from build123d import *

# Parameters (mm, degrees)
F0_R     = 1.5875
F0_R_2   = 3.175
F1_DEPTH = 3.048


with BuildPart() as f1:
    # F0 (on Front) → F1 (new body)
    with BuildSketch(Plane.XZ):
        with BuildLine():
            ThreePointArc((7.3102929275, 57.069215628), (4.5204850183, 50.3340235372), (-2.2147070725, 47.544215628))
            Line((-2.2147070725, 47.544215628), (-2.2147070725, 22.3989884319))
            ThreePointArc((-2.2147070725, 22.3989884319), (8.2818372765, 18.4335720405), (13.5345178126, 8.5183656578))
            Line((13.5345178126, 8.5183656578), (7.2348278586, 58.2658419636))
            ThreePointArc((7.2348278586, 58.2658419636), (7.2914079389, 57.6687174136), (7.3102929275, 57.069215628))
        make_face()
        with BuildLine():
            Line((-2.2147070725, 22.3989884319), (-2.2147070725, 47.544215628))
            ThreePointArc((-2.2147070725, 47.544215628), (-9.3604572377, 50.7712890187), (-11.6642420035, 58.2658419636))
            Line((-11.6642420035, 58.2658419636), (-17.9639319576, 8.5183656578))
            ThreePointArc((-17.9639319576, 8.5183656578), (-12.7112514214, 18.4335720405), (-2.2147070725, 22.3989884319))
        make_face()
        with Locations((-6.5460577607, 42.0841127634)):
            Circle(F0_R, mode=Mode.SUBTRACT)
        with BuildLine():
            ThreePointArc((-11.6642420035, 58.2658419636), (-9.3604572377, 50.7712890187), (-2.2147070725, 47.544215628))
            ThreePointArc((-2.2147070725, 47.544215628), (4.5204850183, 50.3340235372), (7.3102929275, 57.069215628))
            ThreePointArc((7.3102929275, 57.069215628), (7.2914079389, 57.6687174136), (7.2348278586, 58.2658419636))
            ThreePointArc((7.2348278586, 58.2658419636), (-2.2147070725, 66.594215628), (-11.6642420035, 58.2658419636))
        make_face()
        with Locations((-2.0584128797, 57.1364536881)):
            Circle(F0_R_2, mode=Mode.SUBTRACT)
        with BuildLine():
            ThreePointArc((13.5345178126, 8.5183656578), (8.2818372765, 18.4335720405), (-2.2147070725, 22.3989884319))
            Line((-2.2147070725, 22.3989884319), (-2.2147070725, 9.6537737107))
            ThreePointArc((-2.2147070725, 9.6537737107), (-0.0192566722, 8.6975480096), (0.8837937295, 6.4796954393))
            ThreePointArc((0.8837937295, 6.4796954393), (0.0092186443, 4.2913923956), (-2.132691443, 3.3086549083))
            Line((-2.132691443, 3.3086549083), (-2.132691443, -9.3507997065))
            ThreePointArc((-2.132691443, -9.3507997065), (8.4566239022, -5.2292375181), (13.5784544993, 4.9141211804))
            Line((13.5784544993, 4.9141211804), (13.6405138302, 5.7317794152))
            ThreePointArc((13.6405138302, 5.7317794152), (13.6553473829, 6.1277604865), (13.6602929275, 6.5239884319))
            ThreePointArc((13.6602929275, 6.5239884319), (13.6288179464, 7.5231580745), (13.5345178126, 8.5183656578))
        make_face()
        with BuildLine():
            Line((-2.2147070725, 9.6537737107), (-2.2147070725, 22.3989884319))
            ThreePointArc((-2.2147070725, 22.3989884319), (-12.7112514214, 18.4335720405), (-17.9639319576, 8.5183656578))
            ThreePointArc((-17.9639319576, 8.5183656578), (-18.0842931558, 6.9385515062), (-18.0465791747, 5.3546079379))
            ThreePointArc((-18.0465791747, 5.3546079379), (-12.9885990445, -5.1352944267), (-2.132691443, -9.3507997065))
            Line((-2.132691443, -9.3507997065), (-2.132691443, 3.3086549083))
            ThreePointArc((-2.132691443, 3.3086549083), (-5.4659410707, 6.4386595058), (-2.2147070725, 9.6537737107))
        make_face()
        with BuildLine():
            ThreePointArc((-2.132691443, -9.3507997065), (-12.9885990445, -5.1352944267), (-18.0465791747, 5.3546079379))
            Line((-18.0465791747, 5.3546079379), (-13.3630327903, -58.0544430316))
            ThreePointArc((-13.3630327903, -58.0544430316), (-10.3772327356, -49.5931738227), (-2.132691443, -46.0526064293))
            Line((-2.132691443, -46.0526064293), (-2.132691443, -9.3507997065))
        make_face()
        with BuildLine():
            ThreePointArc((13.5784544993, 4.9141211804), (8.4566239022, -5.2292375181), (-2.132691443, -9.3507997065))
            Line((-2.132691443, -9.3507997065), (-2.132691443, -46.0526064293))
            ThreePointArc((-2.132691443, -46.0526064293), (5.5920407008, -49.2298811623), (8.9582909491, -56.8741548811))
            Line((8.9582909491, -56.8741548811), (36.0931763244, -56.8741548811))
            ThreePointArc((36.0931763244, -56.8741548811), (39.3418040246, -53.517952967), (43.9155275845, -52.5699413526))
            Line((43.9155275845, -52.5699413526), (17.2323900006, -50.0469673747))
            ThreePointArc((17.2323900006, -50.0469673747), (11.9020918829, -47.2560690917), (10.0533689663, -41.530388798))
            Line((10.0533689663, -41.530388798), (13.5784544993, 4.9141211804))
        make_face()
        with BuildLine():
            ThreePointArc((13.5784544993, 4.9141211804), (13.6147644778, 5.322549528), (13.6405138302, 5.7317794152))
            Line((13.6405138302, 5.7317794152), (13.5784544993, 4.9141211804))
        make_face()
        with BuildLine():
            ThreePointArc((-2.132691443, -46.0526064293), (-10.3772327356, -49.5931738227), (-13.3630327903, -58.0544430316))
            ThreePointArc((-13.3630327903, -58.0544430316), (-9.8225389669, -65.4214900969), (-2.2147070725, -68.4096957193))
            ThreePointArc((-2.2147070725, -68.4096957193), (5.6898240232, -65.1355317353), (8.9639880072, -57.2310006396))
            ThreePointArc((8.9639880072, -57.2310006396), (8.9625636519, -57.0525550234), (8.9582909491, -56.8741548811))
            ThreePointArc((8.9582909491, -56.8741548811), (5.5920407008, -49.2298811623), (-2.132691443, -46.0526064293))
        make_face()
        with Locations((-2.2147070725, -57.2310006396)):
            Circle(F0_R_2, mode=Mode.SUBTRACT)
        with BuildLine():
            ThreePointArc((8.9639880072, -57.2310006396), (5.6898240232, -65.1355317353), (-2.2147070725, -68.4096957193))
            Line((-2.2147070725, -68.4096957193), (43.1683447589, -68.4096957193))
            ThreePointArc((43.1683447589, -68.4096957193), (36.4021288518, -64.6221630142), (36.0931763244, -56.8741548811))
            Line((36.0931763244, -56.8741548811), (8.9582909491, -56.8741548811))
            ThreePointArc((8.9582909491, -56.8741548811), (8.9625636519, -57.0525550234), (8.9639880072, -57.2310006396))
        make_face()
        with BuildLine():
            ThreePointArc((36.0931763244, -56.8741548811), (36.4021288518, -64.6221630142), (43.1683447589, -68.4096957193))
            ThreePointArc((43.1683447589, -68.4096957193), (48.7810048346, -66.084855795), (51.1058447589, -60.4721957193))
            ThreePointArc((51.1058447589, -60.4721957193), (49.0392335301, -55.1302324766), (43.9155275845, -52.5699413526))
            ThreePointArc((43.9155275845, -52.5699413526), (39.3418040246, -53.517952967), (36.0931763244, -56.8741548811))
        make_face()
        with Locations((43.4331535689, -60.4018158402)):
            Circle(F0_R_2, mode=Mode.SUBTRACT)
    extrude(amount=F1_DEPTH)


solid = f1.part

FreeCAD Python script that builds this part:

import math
import FreeCAD as App
import Part
import Sketcher

V = App.Vector
Q = App.Units.Quantity

doc = App.newDocument("Part")
params = doc.addObject("Spreadsheet::Sheet", "Params")
for row, (alias, value) in enumerate([
    ("sketch1_diameter", "0.25 in"),
    ("sketch1_diameter2", "0.125 in"),
    ("sketch1_radius", "0.375 in"),
    ("sketch1_radius2", "0.625 in"),
    ("sketch1_radius3", "0.3125 in"),
    ("pad1_length", "0.12 in"),
], start=1):
    params.set(f"A{row}", alias)
    params.set(f"B{row}", "=" + value)
    params.setAlias(f"B{row}", alias)

body = doc.addObject("PartDesign::Body", "Body")

sketch1 = body.newObject("Sketcher::SketchObject", "Sketch")
sketch1.AttachmentSupport = (doc.getObject("XZ_Plane"), [""])
sketch1.MapMode = "FlatFace"
sketch1.addGeometry([
    Part.LineSegment(V(13.534518, 8.518366, 0), V(7.234828, 58.265842, 0)),
    Part.ArcOfCircle(Part.Circle(V(-2.214707, 57.069216, 0), V(0, 0, 1), 9.525), math.radians(7.217142), math.radians(172.782858)),
    Part.LineSegment(V(-11.664242, 58.265842, 0), V(-17.963932, 8.518366, 0)),
    Part.ArcOfCircle(Part.Circle(V(-2.214707, 6.523988, 0), V(0, 0, 1), 15.875), math.radians(172.782858), math.radians(184.224334)),
    Part.LineSegment(V(-18.046579, 5.354608, 0), V(-13.363033, -58.054443, 0)),
    Part.ArcOfCircle(Part.Circle(V(-2.214707, -57.231001, 0), V(0, 0, 1), 11.178695), math.radians(-175.775666), math.radians(-90)),
    Part.LineSegment(V(-2.214707, -68.409696, 0), V(43.168345, -68.409696, 0)),
    Part.ArcOfCircle(Part.Circle(V(43.168345, -60.472196, 0), V(0, 0, 1), 7.9375), math.radians(-90), math.radians(0)),
    Part.ArcOfCircle(Part.Circle(V(43.168345, -60.472196, 0), V(0, 0, 1), 7.9375), math.radians(0), math.radians(84.598564)),
    Part.LineSegment(V(43.915528, -52.569941, 0), V(17.23239, -50.046967, 0)),
    Part.ArcOfCircle(Part.Circle(V(17.980768, -42.132069, 0), V(0, 0, 1), 7.9502), math.radians(175.659637), math.radians(264.598564)),
    Part.LineSegment(V(10.053369, -41.530389, 0), V(13.578454, 4.914121, 0)),
    Part.ArcOfCircle(Part.Circle(V(-2.214707, 6.523988, 0), V(0, 0, 1), 15.875), math.radians(-5.82031), math.radians(-2.860415)),
    Part.ArcOfCircle(Part.Circle(V(-2.214707, 6.523988, 0), V(0, 0, 1), 15.875), math.radians(-2.860415), math.radians(0)),
    Part.ArcOfCircle(Part.Circle(V(-2.214707, 6.523988, 0), V(0, 0, 1), 15.875), math.radians(0), math.radians(7.217142)),
    Part.Circle(V(-2.214707, -57.231001, 0), V(0, 0, 1), 3.175),
    Part.Circle(V(43.433154, -60.401816, 0), V(0, 0, 1), 3.175),
    Part.ArcOfCircle(Part.Circle(V(-2.291206, 6.479695, 0), V(0, 0, 1), 3.175), math.radians(0), math.radians(88.619368)),
    Part.ArcOfCircle(Part.Circle(V(-2.291206, 6.479695, 0), V(0, 0, 1), 3.175), math.radians(-87.138265), math.radians(0)),
    Part.ArcOfCircle(Part.Circle(V(-2.291206, 6.479695, 0), V(0, 0, 1), 3.175), math.radians(88.619368), math.radians(272.861735)),
    Part.Circle(V(-6.546058, 42.084113, 0), V(0, 0, 1), 1.5875),
    Part.Circle(V(-2.058413, 57.136454, 0), V(0, 0, 1), 3.175),
], False)
sketch1.addConstraint([
    Sketcher.Constraint("Tangent", 0, 2, 1, 1),
    Sketcher.Constraint("Tangent", 1, 2, 2, 1),
    Sketcher.Constraint("Tangent", 2, 2, 3, 1),
    Sketcher.Constraint("Tangent", 3, 2, 4, 1),
    Sketcher.Constraint("Tangent", 4, 2, 5, 1),
    Sketcher.Constraint("Tangent", 5, 2, 6, 1),
    Sketcher.Constraint("Tangent", 6, 2, 7, 1),
    Sketcher.Constraint("Tangent", 7, 2, 8, 1),
    Sketcher.Constraint("Tangent", 8, 2, 9, 1),
    Sketcher.Constraint("Tangent", 9, 2, 10, 2),
    Sketcher.Constraint("Tangent", 10, 1, 11, 1),
    Sketcher.Constraint("Coincident", 11, 2, 12, 1),
    Sketcher.Constraint("Tangent", 12, 2, 13, 1),
    Sketcher.Constraint("Tangent", 13, 2, 14, 1),
    Sketcher.Constraint("Tangent", 14, 2, 0, 1),
    Sketcher.Constraint("Tangent", 17, 1, 18, 2),
    Sketcher.Constraint("Tangent", 18, 1, 19, 2),
    Sketcher.Constraint("Tangent", 19, 1, 17, 2),
    Sketcher.Constraint("Horizontal", 6),
    Sketcher.Constraint("Coincident", 12, 3, 3, 3),
    Sketcher.Constraint("Coincident", 14, 3, 3, 3),
    Sketcher.Constraint("Coincident", 15, 3, 5, 3),
    Sketcher.Constraint("Equal", 7, 8),
    Sketcher.Constraint("Equal", 3, 12),
    Sketcher.Constraint("Equal", 15, 16),
    Sketcher.Constraint("Equal", 16, 17),
    Sketcher.Constraint("Equal", 19, 21),
    Sketcher.Constraint("Horizontal", 0, 2, 1, 2),
    Sketcher.Constraint("Horizontal", 8, 3, 7, 2),
    Sketcher.Constraint("Horizontal", 14, 3, 13, 2),
    Sketcher.Constraint("Horizontal", 19, 3, 17, 1),
    Sketcher.Constraint("Vertical", 3, 3, 5, 3),
    Sketcher.Constraint("Vertical", 5, 2, 19, 1),
    Sketcher.Constraint("Diameter", 15, Q("0.25 in")),
    Sketcher.Constraint("Diameter", 20, Q("0.125 in")),
    Sketcher.Constraint("Radius", 1, Q("0.375 in")),
    Sketcher.Constraint("Radius", 3, Q("0.625 in")),
    Sketcher.Constraint("Radius", 7, Q("0.3125 in")),
    Sketcher.Constraint("Radius", 10, Q("0.313 in")),
    Sketcher.Constraint("Radius", 5, Q("11.178695 mm")),
    Sketcher.Constraint("DistanceX", 6, 1, 6, 2, Q("45.383052 mm")),
    Sketcher.Constraint("DistanceY", 5, 3, -1, 1, Q("57.231001 mm")),
    Sketcher.Constraint("DistanceX", 17, 3, 14, 3, Q("0.076499 mm")),
    Sketcher.Constraint("DistanceX", 4, 2, 10, 3, Q("31.343801 mm")),
    Sketcher.Constraint("Distance", 9, Q("26.80215 mm")),
    Sketcher.Constraint("DistanceY", -1, 1, 3, 3, Q("6.523988 mm")),
    Sketcher.Constraint("DistanceX", -1, 1, 10, 3, Q("17.980768 mm")),
    Sketcher.Constraint("DistanceY", -1, 1, 0, 2, Q("58.265842 mm")),
    Sketcher.Constraint("DistanceY", -1, 1, 11, 2, Q("4.914121 mm")),
    Sketcher.Constraint("DistanceY", -1, 1, 12, 2, Q("5.731779 mm")),
    Sketcher.Constraint("DistanceX", 18, 1, -1, 1, Q("2.132691 mm")),
    Sketcher.Constraint("DistanceX", 7, 3, 16, 3, Q("0.264809 mm")),
    Sketcher.Constraint("DistanceY", 7, 3, 16, 3, Q("0.07038 mm")),
    Sketcher.Constraint("DistanceY", 17, 3, 1, 3, Q("50.58952 mm")),
    Sketcher.Constraint("DistanceX", 20, 3, 1, 3, Q("4.331351 mm")),
    Sketcher.Constraint("DistanceY", 1, 3, 21, 3, Q("0.067238 mm")),
    Sketcher.Constraint("DistanceY", 20, 3, 21, 3, Q("15.052341 mm")),
    Sketcher.Constraint("DistanceX", 21, 3, 0, 2, Q("9.293241 mm")),
])
sketch1.setExpression("Constraints[33]", "Params.sketch1_diameter")
sketch1.setExpression("Constraints[34]", "Params.sketch1_diameter2")
sketch1.setExpression("Constraints[35]", "Params.sketch1_radius")
sketch1.setExpression("Constraints[36]", "Params.sketch1_radius2")
sketch1.setExpression("Constraints[37]", "Params.sketch1_radius3")
pad1 = body.newObject("PartDesign::Pad", "Pad")
pad1.Profile = sketch1
pad1.setExpression("Length", "Params.pad1_length")

doc.recompute()
